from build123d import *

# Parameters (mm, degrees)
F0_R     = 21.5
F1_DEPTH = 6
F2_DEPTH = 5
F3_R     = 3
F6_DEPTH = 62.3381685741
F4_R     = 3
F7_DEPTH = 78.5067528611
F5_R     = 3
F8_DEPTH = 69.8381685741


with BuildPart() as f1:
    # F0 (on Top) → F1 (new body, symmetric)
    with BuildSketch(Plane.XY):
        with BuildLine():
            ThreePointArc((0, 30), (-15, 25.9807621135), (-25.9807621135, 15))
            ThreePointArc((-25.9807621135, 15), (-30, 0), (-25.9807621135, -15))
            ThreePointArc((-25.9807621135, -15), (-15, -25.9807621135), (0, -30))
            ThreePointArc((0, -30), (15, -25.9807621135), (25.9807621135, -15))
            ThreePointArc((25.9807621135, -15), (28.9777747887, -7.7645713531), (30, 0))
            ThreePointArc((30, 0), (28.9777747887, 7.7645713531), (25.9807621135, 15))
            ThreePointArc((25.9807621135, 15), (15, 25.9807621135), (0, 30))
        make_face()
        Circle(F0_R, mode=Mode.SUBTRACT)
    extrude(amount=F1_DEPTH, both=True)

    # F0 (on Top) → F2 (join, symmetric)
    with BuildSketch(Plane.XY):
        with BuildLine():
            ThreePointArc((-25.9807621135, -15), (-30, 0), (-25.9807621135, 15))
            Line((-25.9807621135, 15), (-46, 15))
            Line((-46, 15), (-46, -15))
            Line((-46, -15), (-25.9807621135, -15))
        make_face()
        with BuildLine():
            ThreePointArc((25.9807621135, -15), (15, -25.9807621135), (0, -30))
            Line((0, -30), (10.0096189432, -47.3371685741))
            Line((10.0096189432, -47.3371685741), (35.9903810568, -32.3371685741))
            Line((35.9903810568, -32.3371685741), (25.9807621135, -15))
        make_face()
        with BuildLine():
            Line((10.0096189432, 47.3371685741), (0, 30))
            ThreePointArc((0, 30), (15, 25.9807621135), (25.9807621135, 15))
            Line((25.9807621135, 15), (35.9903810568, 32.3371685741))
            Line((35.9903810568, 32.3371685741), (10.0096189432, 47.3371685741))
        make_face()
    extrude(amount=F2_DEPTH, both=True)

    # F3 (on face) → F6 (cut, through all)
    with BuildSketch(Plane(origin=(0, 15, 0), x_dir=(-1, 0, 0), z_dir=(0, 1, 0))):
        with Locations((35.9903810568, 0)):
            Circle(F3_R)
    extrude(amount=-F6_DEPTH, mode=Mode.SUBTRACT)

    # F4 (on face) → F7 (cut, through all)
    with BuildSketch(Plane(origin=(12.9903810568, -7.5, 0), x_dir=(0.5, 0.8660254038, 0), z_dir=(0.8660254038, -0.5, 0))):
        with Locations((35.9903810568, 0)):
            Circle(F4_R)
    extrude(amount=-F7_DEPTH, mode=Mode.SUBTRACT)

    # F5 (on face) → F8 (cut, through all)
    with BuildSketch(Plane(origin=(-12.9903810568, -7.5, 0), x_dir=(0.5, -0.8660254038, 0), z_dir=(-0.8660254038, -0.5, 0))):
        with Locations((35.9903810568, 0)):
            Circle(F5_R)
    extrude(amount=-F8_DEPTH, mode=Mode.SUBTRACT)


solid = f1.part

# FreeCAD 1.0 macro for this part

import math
import FreeCAD as App
import Part
import Sketcher

doc = App.newDocument("Part")
body = doc.addObject("PartDesign::Body", "Body")

# Sketch on XY plane
sketch1 = body.newObject("Sketcher::SketchObject", "Sketch")
sketch1.AttachmentSupport = (doc.getObject("XY_Plane"), [""])
sketch1.MapMode = "FlatFace"
sketch1.addGeometry(Part.ArcOfCircle(Part.Circle(App.Vector(0, 0, 0), App.Vector(0, 0, 1), 30), math.radians(90), math.radians(150)), False)
sketch1.addGeometry(Part.ArcOfCircle(Part.Circle(App.Vector(0, 0, 0), App.Vector(0, 0, 1), 30), math.radians(150), math.radians(210)), False)
sketch1.addGeometry(Part.ArcOfCircle(Part.Circle(App.Vector(0, 0, 0), App.Vector(0, 0, 1), 30), math.radians(-150), math.radians(-90)), False)
sketch1.addGeometry(Part.ArcOfCircle(Part.Circle(App.Vector(0, 0, 0), App.Vector(0, 0, 1), 30), math.radians(-90), math.radians(-30)), False)
sketch1.addGeometry(Part.ArcOfCircle(Part.Circle(App.Vector(0, 0, 0), App.Vector(0, 0, 1), 30), math.radians(-30), math.radians(0)), False)
sketch1.addGeometry(Part.ArcOfCircle(Part.Circle(App.Vector(0, 0, 0), App.Vector(0, 0, 1), 30), math.radians(0), math.radians(30)), False)
sketch1.addGeometry(Part.ArcOfCircle(Part.Circle(App.Vector(0, 0, 0), App.Vector(0, 0, 1), 30), math.radians(30), math.radians(90)), False)
sketch1.addGeometry(Part.Circle(App.Vector(0, 0, 0), App.Vector(0, 0, 1), 22), False)
sketch1.addConstraint(Sketcher.Constraint("Tangent", 0, 2, 1, 1))
sketch1.addConstraint(Sketcher.Constraint("Tangent", 1, 2, 2, 1))
sketch1.addConstraint(Sketcher.Constraint("Tangent", 2, 2, 3, 1))
sketch1.addConstraint(Sketcher.Constraint("Tangent", 3, 2, 4, 1))
sketch1.addConstraint(Sketcher.Constraint("Tangent", 4, 2, 5, 1))
sketch1.addConstraint(Sketcher.Constraint("Tangent", 5, 2, 6, 1))
sketch1.addConstraint(Sketcher.Constraint("Tangent", 6, 2, 0, 1))
sketch1.addConstraint(Sketcher.Constraint("Coincident", 0, 3, -1, 1))
sketch1.addConstraint(Sketcher.Constraint("Coincident", 2, 3, -1, 1))
sketch1.addConstraint(Sketcher.Constraint("Coincident", 4, 3, -1, 1))
sketch1.addConstraint(Sketcher.Constraint("Coincident", 7, 3, -1, 1))
sketch1.addConstraint(Sketcher.Constraint("PointOnObject", 2, 2, -2))
sketch1.addConstraint(Sketcher.Constraint("PointOnObject", 4, 2, -1))
sketch1.addConstraint(Sketcher.Constraint("PointOnObject", 6, 2, -2))
sketch1.addConstraint(Sketcher.Constraint("Horizontal", 1, 2, 3, 2))
sketch1.addConstraint(Sketcher.Constraint("Horizontal", 0, 2, 5, 2))
sketch1.addConstraint(Sketcher.Constraint("Vertical", 0, 2, 1, 2))
sketch1.addConstraint(Sketcher.Constraint("Diameter", 7, 43.0))
sketch1.addConstraint(Sketcher.Constraint("Radius", 0, 30.0))
sketch1.addConstraint(Sketcher.Constraint("DistanceY", -1, 1, 0, 2, 15.0))
pad1 = body.newObject("PartDesign::Pad", "Pad")
pad1.Profile = sketch1
pad1.Length = 12
pad1.Midplane = True

# Sketch on XY plane
sketch2 = body.newObject("Sketcher::SketchObject", "Sketch001")
sketch2.AttachmentSupport = (doc.getObject("XY_Plane"), [""])
sketch2.MapMode = "FlatFace"
sketch2.addGeometry(Part.ArcOfCircle(Part.Circle(App.Vector(0, 0, 0), App.Vector(0, 0, 1), 30), math.radians(150), math.radians(210)), False)
sketch2.addGeometry(Part.LineSegment(App.Vector(-26, 15, 0), App.Vector(-46, 15, 0)), False)
sketch2.addGeometry(Part.LineSegment(App.Vector(-46, 15, 0), App.Vector(-46, -15, 0)), False)
sketch2.addGeometry(Part.LineSegment(App.Vector(-46, -15, 0), App.Vector(-26, -15, 0)), False)
sketch2.addGeometry(Part.ArcOfCircle(Part.Circle(App.Vector(0, 0, 0), App.Vector(0, 0, 1), 30), math.radians(-90), math.radians(-30)), False)
sketch2.addGeometry(Part.LineSegment(App.Vector(0, -30, 0), App.Vector(10, -47, 0)), False)
sketch2.addGeometry(Part.LineSegment(App.Vector(10, -47, 0), App.Vector(36, -32, 0)), False)
sketch2.addGeometry(Part.LineSegment(App.Vector(36, -32, 0), App.Vector(26, -15, 0)), False)
sketch2.addGeometry(Part.LineSegment(App.Vector(10, 47, 0), App.Vector(0, 30, 0)), False)
sketch2.addGeometry(Part.ArcOfCircle(Part.Circle(App.Vector(0, 0, 0), App.Vector(0, 0, 1), 30), math.radians(30), math.radians(90)), False)
sketch2.addGeometry(Part.LineSegment(App.Vector(26, 15, 0), App.Vector(36, 32, 0)), False)
sketch2.addGeometry(Part.LineSegment(App.Vector(36, 32, 0), App.Vector(10, 47, 0)), False)
sketch2.addConstraint(Sketcher.Constraint("Coincident", 0, 1, 1, 1))
sketch2.addConstraint(Sketcher.Constraint("Coincident", 1, 2, 2, 1))
sketch2.addConstraint(Sketcher.Constraint("Coincident", 2, 2, 3, 1))
sketch2.addConstraint(Sketcher.Constraint("Coincident", 3, 2, 0, 2))
sketch2.addConstraint(Sketcher.Constraint("Coincident", 4, 1, 5, 1))
sketch2.addConstraint(Sketcher.Constraint("Coincident", 5, 2, 6, 1))
sketch2.addConstraint(Sketcher.Constraint("Coincident", 6, 2, 7, 1))
sketch2.addConstraint(Sketcher.Constraint("Coincident", 7, 2, 4, 2))
sketch2.addConstraint(Sketcher.Constraint("Coincident", 8, 2, 9, 2))
sketch2.addConstraint(Sketcher.Constraint("Coincident", 9, 1, 10, 1))
sketch2.addConstraint(Sketcher.Constraint("Coincident", 10, 2, 11, 1))
sketch2.addConstraint(Sketcher.Constraint("Coincident", 11, 2, 8, 1))
sketch2.addConstraint(Sketcher.Constraint("Horizontal", 1))
sketch2.addConstraint(Sketcher.Constraint("Vertical", 2))
sketch2.addConstraint(Sketcher.Constraint("Horizontal", 3))
sketch2.addConstraint(Sketcher.Constraint("Coincident", 0, 3, -1, 1))
sketch2.addConstraint(Sketcher.Constraint("Coincident", 4, 3, -1, 1))
sketch2.addConstraint(Sketcher.Constraint("Coincident", 9, 3, -1, 1))
sketch2.addConstraint(Sketcher.Constraint("Equal", 0, 4))
sketch2.addConstraint(Sketcher.Constraint("Equal", 4, 9))
sketch2.addConstraint(Sketcher.Constraint("Symmetric", 6, 2, 10, 2, -1))
sketch2.addConstraint(Sketcher.Constraint("Symmetric", 5, 2, 11, 2, -1))
sketch2.addConstraint(Sketcher.Constraint("PointOnObject", 4, 1, -2))
sketch2.addConstraint(Sketcher.Constraint("PointOnObject", 8, 2, -2))
sketch2.addConstraint(Sketcher.Constraint("Perpendicular", 5, 6))
sketch2.addConstraint(Sketcher.Constraint("Perpendicular", 6, 7))
sketch2.addConstraint(Sketcher.Constraint("Parallel", 8, 10))
sketch2.addConstraint(Sketcher.Constraint("Horizontal", 3, 2, 7, 2))
sketch2.addConstraint(Sketcher.Constraint("Horizontal", 1, 2, 9, 1))
sketch2.addConstraint(Sketcher.Constraint("Equal", 5, 7))
sketch2.addConstraint(Sketcher.Constraint("Radius", 0, 30.0))
sketch2.addConstraint(Sketcher.Constraint("DistanceY", 2, 2, 2, 1, 30.0))
sketch2.addConstraint(Sketcher.Constraint("DistanceX", 1, 2, -1, 1, 46.0))
sketch2.addConstraint(Sketcher.Constraint("DistanceX", -1, 1, 5, 2, 10.009619))
pad2 = body.newObject("PartDesign::Pad", "Pad001")
pad2.Profile = sketch2
pad2.Length = 10
pad2.Midplane = True

# Sketch on XZ plane
sketch3 = body.newObject("Sketcher::SketchObject", "Sketch002")
sketch3.AttachmentSupport = (doc.getObject("XZ_Plane"), [""])
sketch3.MapMode = "FlatFace"
sketch3.AttachmentOffset = App.Placement(App.Vector(0, 0, -15), App.Rotation())
sketch3.addGeometry(Part.Circle(App.Vector(-36, 0, 0), App.Vector(0, 0, 1), 3), False)
sketch3.addConstraint(Sketcher.Constraint("PointOnObject", 0, 3, -1))
sketch3.addConstraint(Sketcher.Constraint("Diameter", 0, 6.0))
sketch3.addConstraint(Sketcher.Constraint("DistanceX", 0, 3, -1, 1, 35.990381))
pocket1 = body.newObject("PartDesign::Pocket", "Pocket")
pocket1.Profile = sketch3
pocket1.Type = "ThroughAll"
pocket1.Reversed = True

# Sketch on an angled plane
sketch4 = body.newObject("Sketcher::SketchObject", "Sketch003")
sketch4.Placement = App.Placement(App.Vector(12.990381, -7.5, 0), App.Rotation(App.Vector(0.5, 0.866025404, 0), App.Vector(0, 0, 1), App.Vector(0.866025404, -0.5, 0), "ZXY"))
sketch4.addGeometry(Part.Circle(App.Vector(36, 0, 0), App.Vector(0, 0, 1), 3), False)
sketch4.addConstraint(Sketcher.Constraint("PointOnObject", 0, 3, -1))
sketch4.addConstraint(Sketcher.Constraint("Diameter", 0, 6.0))
sketch4.addConstraint(Sketcher.Constraint("DistanceX", -1, 1, 0, 3, 35.990381))
pocket2 = body.newObject("PartDesign::Pocket", "Pocket001")
pocket2.Profile = sketch4
pocket2.Type = "ThroughAll"

# Sketch on an angled plane
sketch5 = body.newObject("Sketcher::SketchObject", "Sketch004")
sketch5.Placement = App.Placement(App.Vector(-12.990381, -7.5, 0), App.Rotation(App.Vector(0.5, -0.866025404, 0), App.Vector(0, 0, 1), App.Vector(-0.866025404, -0.5, 0), "ZXY"))
sketch5.addGeometry(Part.Circle(App.Vector(36, 0, 0), App.Vector(0, 0, 1), 3), False)
sketch5.addConstraint(Sketcher.Constraint("PointOnObject", 0, 3, -1))
sketch5.addConstraint(Sketcher.Constraint("Diameter", 0, 6.0))
sketch5.addConstraint(Sketcher.Constraint("DistanceX", -1, 1, 0, 3, 35.990381))
pocket3 = body.newObject("PartDesign::Pocket", "Pocket002")
pocket3.Profile = sketch5
pocket3.Type = "ThroughAll"

doc.recompute()
